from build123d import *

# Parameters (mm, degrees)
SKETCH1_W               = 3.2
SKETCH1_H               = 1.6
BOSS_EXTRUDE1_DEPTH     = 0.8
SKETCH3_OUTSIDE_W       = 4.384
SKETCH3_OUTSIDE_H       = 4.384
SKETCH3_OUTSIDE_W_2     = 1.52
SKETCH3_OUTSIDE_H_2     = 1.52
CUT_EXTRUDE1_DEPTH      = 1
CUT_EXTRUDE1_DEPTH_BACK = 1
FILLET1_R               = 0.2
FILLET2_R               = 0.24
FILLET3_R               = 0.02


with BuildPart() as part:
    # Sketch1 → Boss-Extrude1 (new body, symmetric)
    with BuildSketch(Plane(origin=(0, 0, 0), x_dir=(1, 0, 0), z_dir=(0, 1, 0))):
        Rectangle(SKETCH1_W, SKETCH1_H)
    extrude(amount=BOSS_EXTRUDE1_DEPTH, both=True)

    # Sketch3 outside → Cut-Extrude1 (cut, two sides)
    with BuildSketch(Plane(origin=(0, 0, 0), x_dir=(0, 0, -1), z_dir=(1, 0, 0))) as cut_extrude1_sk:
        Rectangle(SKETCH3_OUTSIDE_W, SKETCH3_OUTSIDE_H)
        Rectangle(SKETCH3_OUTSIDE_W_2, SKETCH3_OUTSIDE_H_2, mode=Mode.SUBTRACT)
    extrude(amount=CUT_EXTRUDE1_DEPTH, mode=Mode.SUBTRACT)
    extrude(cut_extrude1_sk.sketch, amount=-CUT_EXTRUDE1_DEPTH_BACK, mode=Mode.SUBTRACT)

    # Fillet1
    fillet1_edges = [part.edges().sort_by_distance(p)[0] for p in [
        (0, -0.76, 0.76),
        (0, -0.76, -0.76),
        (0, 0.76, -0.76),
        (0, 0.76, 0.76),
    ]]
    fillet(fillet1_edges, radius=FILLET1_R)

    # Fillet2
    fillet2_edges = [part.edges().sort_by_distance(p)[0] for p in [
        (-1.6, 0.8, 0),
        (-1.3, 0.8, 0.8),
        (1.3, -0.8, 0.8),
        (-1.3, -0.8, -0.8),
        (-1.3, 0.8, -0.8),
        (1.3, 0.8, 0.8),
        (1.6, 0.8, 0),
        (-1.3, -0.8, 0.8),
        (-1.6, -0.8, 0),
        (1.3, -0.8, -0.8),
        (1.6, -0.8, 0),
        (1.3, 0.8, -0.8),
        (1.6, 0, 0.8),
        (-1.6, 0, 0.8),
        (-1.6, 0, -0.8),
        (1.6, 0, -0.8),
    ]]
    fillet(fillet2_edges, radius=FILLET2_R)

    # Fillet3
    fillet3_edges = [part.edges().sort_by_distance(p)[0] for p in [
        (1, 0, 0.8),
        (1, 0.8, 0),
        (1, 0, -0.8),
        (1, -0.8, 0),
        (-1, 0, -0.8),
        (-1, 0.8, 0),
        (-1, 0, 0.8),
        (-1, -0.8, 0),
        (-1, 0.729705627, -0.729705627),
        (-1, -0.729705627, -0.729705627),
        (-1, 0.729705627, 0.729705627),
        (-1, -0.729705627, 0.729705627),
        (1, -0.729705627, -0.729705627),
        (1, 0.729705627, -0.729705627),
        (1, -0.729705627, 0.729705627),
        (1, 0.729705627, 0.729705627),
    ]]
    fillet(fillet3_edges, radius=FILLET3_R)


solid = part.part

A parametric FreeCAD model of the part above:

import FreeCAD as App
import Part
import Sketcher

V = App.Vector


def edges_at(feature, points):
    """Names of the edges that pass closest to the given points."""
    edges = feature.Shape.Edges
    near = lambda p: min(range(len(edges)), key=lambda i: edges[i].distToShape(Part.Vertex(*p))[0])
    return sorted({f"Edge{near(p) + 1}" for p in points})

doc = App.newDocument("Part")
body = doc.addObject("PartDesign::Body", "Body")

# Sketch on XZ plane
sketch1 = body.newObject("Sketcher::SketchObject", "Sketch")
sketch1.AttachmentSupport = (doc.getObject("XZ_Plane"), [""])
sketch1.MapMode = "FlatFace"
sketch1.addGeometry([
    Part.LineSegment(V(-1.6, -0.8, 0), V(-1.6, 0.8, 0)),
    Part.LineSegment(V(-1.6, 0.8, 0), V(1.6, 0.8, 0)),
    Part.LineSegment(V(1.6, 0.8, 0), V(1.6, -0.8, 0)),
    Part.LineSegment(V(1.6, -0.8, 0), V(-1.6, -0.8, 0)),
], False)
sketch1.addConstraint([
    Sketcher.Constraint("Coincident", 0, 2, 1, 1),
    Sketcher.Constraint("Coincident", 1, 2, 2, 1),
    Sketcher.Constraint("Coincident", 2, 2, 3, 1),
    Sketcher.Constraint("Coincident", 3, 2, 0, 1),
    Sketcher.Constraint("Vertical", 0),
    Sketcher.Constraint("Horizontal", 1),
    Sketcher.Constraint("Vertical", 2),
    Sketcher.Constraint("Horizontal", 3),
    Sketcher.Constraint("Symmetric", 0, 2, 2, 2, -1, 1),
    Sketcher.Constraint("DistanceX", 1, 1, 1, 2, 3.2),
    Sketcher.Constraint("DistanceY", 0, 1, 0, 2, 1.6),
])
pad1 = body.newObject("PartDesign::Pad", "Pad")
pad1.Profile = sketch1
pad1.Length = 1.6
pad1.Midplane = True

# Sketch on YZ plane
sketch2 = body.newObject("Sketcher::SketchObject", "Sketch001")
sketch2.AttachmentSupport = (doc.getObject("YZ_Plane"), [""])
sketch2.MapMode = "FlatFace"
sketch2.addGeometry([
    Part.LineSegment(V(2.2, 2.2, 0), V(-2.2, 2.2, 0)),  # 0
    Part.LineSegment(V(-2.2, 2.2, 0), V(-2.2, -2.2, 0)),  # 1
    Part.LineSegment(V(-2.2, -2.2, 0), V(2.2, -2.2, 0)),  # 2
    Part.LineSegment(V(2.2, -2.2, 0), V(2.2, 2.2, 0)),  # 3
    Part.LineSegment(V(-0.8, -0.8, 0), V(-0.8, 0.8, 0)),  # 4
    Part.LineSegment(V(-0.8, 0.8, 0), V(0.8, 0.8, 0)),  # 5
    Part.LineSegment(V(0.8, 0.8, 0), V(0.8, -0.8, 0)),  # 6
    Part.LineSegment(V(0.8, -0.8, 0), V(-0.8, -0.8, 0)),  # 7
], False)
sketch2.addConstraint([
    Sketcher.Constraint("Coincident", 0, 2, 1, 1),
    Sketcher.Constraint("Coincident", 1, 2, 2, 1),
    Sketcher.Constraint("Coincident", 2, 2, 3, 1),
    Sketcher.Constraint("Coincident", 3, 2, 0, 1),
    Sketcher.Constraint("Coincident", 4, 2, 5, 1),
    Sketcher.Constraint("Coincident", 5, 2, 6, 1),
    Sketcher.Constraint("Coincident", 6, 2, 7, 1),
    Sketcher.Constraint("Coincident", 7, 2, 4, 1),
    Sketcher.Constraint("Horizontal", 0),
    Sketcher.Constraint("Vertical", 1),
    Sketcher.Constraint("Horizontal", 2),
    Sketcher.Constraint("Vertical", 3),
    Sketcher.Constraint("Vertical", 4),
    Sketcher.Constraint("Horizontal", 5),
    Sketcher.Constraint("Vertical", 6),
    Sketcher.Constraint("Horizontal", 7),
    Sketcher.Constraint("Symmetric", 0, 2, 2, 2, -1, 1),
    Sketcher.Constraint("Symmetric", 4, 2, 6, 2, -1, 1),
    Sketcher.Constraint("Equal", 2, 1),
    Sketcher.Constraint("Equal", 7, 4),
    Sketcher.Constraint("DistanceX", 5, 1, 5, 2, 1.52),
    Sketcher.Constraint("DistanceX", 0, 2, 0, 1, 4.384),
])
pocket1 = body.newObject("PartDesign::Pocket", "Pocket")
pocket1.Profile = sketch2
pocket1.Type = "TwoLengths"
pocket1.Length = 1
pocket1.Length2 = 1
pocket1.Reversed = True
doc.recompute()

fillet = body.newObject("PartDesign::Fillet", "Fillet")
fillet.Base = (pocket1, edges_at(pocket1, [
    (0, -0.76, 0.76),
    (0, -0.76, -0.76),
    (0, 0.76, -0.76),
    (0, 0.76, 0.76),
]))
fillet.Radius = 0.2
doc.recompute()

fillet2 = body.newObject("PartDesign::Fillet", "Fillet001")
fillet2.Base = (fillet, edges_at(fillet, [
    (-1.6, 0.8, 0),
    (-1.3, 0.8, 0.8),
    (1.3, -0.8, 0.8),
    (-1.3, -0.8, -0.8),
    (-1.3, 0.8, -0.8),
    (1.3, 0.8, 0.8),
    (1.6, 0.8, 0),
    (-1.3, -0.8, 0.8),
    (-1.6, -0.8, 0),
    (1.3, -0.8, -0.8),
    (1.6, -0.8, 0),
    (1.3, 0.8, -0.8),
    (1.6, 0, 0.8),
    (-1.6, 0, 0.8),
    (-1.6, 0, -0.8),
    (1.6, 0, -0.8),
]))
fillet2.Radius = 0.24
doc.recompute()

fillet3 = body.newObject("PartDesign::Fillet", "Fillet002")
fillet3.Base = (fillet2, edges_at(fillet2, [
    (1, 0, 0.8),
    (1, 0.8, 0),
    (1, 0, -0.8),
    (1, -0.8, 0),
    (-1, 0, -0.8),
    (-1, 0.8, 0),
    (-1, 0, 0.8),
    (-1, -0.8, 0),
    (-1, 0.73, -0.73),
    (-1, -0.73, -0.73),
    (-1, 0.73, 0.73),
    (-1, -0.73, 0.73),
    (1, -0.73, -0.73),
    (1, 0.73, -0.73),
    (1, -0.73, 0.73),
    (1, 0.73, 0.73),
]))
fillet3.Radius = 0.02

doc.recompute()
